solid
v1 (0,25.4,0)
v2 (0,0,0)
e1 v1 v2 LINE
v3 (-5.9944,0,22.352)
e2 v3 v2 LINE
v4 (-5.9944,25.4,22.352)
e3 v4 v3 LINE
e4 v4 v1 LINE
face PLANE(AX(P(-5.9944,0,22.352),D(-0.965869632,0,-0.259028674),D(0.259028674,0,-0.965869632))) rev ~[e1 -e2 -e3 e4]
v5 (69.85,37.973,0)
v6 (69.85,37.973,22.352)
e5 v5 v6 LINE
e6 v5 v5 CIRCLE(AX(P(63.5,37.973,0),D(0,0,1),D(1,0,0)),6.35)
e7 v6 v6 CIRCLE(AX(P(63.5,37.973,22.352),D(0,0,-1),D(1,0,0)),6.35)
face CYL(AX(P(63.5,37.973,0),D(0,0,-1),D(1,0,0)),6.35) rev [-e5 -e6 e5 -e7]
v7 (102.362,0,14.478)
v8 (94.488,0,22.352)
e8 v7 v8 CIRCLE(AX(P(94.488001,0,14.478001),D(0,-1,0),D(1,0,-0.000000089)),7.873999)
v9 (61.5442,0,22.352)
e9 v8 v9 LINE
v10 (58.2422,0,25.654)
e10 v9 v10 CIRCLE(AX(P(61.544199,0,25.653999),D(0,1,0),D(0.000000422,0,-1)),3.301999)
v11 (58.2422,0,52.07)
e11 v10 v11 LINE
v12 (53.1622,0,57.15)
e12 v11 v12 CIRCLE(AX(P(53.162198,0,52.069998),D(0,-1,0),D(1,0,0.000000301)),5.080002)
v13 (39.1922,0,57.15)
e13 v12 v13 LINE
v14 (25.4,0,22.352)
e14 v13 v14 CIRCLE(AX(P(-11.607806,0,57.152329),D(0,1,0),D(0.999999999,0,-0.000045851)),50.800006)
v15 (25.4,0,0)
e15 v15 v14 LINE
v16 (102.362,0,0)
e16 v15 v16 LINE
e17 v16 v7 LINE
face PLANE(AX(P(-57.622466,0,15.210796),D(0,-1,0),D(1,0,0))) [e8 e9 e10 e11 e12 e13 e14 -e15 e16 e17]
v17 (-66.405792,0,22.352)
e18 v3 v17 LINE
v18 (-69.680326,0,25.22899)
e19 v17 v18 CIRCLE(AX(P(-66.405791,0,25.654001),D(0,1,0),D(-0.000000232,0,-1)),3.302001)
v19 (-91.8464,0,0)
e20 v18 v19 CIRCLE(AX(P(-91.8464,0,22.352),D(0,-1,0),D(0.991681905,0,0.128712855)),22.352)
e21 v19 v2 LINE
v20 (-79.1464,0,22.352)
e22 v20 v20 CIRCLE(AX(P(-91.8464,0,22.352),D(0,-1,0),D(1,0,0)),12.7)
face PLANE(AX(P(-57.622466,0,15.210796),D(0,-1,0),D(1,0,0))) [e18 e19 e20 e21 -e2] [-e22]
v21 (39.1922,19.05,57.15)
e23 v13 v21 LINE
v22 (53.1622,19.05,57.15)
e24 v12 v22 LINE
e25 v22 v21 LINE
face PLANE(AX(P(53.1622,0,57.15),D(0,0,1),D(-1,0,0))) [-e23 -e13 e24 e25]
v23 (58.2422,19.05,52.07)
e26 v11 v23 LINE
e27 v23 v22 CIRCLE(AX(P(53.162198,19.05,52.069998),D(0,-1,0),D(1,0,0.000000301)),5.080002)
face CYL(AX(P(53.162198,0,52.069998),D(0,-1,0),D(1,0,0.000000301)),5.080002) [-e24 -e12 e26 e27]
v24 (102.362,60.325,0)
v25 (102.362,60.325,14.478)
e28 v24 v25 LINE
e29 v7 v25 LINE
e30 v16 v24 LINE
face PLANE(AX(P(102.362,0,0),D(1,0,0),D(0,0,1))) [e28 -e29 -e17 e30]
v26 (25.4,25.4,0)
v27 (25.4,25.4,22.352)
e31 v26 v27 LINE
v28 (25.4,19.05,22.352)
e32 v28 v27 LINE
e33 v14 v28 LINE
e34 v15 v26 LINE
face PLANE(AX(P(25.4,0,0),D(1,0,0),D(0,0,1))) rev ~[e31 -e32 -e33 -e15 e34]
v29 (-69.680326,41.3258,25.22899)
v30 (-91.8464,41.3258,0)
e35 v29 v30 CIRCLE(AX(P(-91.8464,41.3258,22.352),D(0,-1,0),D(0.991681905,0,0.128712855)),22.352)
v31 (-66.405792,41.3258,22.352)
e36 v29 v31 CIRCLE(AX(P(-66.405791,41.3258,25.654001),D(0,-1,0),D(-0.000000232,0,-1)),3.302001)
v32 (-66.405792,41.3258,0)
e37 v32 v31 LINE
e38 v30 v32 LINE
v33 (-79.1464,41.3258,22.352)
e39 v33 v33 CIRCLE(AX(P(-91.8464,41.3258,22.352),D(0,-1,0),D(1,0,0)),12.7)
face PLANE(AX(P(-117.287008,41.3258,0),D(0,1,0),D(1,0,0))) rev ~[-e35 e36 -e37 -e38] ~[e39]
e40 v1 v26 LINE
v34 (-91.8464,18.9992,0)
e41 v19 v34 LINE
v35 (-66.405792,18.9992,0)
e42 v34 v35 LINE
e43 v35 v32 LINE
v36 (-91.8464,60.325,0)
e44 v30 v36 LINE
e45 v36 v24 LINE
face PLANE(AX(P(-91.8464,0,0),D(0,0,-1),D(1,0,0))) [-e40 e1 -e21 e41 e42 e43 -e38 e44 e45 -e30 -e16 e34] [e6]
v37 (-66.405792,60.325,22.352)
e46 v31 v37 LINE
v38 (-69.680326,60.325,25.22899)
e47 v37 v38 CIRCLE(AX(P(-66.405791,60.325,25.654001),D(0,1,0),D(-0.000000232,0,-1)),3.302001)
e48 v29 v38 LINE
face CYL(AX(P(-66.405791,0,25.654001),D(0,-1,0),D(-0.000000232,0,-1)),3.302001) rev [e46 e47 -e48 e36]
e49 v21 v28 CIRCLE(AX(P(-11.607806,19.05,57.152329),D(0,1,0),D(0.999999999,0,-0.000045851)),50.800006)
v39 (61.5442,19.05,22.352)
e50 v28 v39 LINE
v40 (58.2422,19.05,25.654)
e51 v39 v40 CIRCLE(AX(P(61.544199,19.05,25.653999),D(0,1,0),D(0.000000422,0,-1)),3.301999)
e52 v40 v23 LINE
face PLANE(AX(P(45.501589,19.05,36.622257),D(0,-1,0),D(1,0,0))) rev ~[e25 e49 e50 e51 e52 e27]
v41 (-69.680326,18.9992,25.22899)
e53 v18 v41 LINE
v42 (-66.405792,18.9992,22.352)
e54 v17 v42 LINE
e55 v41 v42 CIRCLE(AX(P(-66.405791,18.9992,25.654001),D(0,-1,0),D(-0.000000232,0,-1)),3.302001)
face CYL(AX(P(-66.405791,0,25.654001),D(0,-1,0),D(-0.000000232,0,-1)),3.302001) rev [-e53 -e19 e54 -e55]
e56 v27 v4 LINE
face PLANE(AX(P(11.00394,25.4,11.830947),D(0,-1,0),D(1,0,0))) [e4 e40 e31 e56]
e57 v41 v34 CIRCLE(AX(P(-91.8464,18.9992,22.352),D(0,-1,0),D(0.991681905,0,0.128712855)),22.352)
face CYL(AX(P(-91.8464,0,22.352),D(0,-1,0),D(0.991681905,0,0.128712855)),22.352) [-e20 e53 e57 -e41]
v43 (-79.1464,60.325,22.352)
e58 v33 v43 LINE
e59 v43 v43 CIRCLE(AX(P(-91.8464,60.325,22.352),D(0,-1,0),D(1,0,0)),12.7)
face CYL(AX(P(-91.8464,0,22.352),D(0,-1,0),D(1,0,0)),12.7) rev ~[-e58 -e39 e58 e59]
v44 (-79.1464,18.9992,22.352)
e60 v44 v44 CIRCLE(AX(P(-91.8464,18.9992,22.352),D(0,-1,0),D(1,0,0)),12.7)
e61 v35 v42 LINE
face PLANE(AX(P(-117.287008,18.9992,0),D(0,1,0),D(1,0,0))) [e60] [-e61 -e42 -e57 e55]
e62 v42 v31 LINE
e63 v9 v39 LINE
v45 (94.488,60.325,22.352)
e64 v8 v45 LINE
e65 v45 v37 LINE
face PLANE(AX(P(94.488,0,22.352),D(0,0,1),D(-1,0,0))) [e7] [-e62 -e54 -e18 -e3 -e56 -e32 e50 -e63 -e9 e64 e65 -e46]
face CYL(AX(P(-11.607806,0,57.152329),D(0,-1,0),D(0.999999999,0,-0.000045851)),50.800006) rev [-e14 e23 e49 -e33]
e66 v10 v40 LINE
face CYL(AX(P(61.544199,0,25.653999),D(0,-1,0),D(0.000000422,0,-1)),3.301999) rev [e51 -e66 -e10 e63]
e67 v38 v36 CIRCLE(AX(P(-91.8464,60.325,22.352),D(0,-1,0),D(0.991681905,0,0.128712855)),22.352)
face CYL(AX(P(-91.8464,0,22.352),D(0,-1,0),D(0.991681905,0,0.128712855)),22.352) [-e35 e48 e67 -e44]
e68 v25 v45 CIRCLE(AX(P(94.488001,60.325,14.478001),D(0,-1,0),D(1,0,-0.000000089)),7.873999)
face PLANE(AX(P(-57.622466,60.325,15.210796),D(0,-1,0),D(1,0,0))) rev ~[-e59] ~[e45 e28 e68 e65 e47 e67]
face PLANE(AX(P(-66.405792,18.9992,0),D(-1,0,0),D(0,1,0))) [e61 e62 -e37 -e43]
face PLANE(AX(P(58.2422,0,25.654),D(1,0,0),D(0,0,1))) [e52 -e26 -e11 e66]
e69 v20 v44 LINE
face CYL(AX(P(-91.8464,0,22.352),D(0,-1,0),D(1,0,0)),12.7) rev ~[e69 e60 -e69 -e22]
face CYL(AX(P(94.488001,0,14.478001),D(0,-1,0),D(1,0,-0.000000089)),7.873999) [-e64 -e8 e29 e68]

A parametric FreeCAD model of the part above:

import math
import FreeCAD as App
import Part
import Sketcher
Q = App.Units.Quantity


def add_polygon(sketch, points):
    """Adds a closed chain of lines whose ends are joined by coincident constraints."""
    first, n = sketch.GeometryCount, len(points)
    for a, b in zip(points, points[1:] + points[:1]):
        sketch.addGeometry(Part.LineSegment(App.Vector(*a, 0), App.Vector(*b, 0)), False)
    for i in range(n):
        sketch.addConstraint(Sketcher.Constraint("Coincident", first + i, 2, first + (i + 1) % n, 1))

doc = App.newDocument("Part")
params = doc.addObject("Spreadsheet::Sheet", "Params")
for row, (alias, value) in enumerate([
    ("sketch1_diameter", "1 in"),
    ("sketch1_radius", "0.31 in"),
    ("sketch1_radius2", "0.1300001 in"),
    ("sketch1_radius3", "0.88 in"),
    ("sketch1_width", "7.646 in"),
    ("pad1_length", "2.375 in"),
    ("sketch2_radius", "0.2000001 in"),
    ("sketch2_radius2", "0.1299999 in"),
    ("sketch2_width", "0.55 in"),
    ("sketch2_height", "1.04 in"),
    ("sketch2_width2", "1.423 in"),
    ("pad2_length", "0.75 in"),
    ("sketch3_width", "1 in"),
    ("sketch3_height", "0.88 in"),
    ("sketch3_width2", "1.236 in"),
    ("pocket1_length", "0.75 in"),
    ("sketch4_width", "1 in"),
    ("sketch4_height", "0.88 in"),
    ("sketch4_width2", "1.236 in"),
    ("pocket2_length", "1 in"),
    ("sketch5_diameter", "0.5 in"),
    ("sketch5_height", "0.879 in"),
], start=1):
    params.set(f"A{row}", alias)
    params.set(f"B{row}", "=" + value)
    params.setAlias(f"B{row}", alias)

body = doc.addObject("PartDesign::Body", "Body")

# Sketch on XZ plane
sketch1 = body.newObject("Sketcher::SketchObject", "Sketch")
sketch1.AttachmentSupport = (doc.getObject("XZ_Plane"), [""])
sketch1.MapMode = "FlatFace"
sketch1.addGeometry([
    Part.LineSegment(App.Vector(-91.8464, 0, 0), App.Vector(102.362, 0, 0)),  # 0
    Part.LineSegment(App.Vector(102.362, 0, 0), App.Vector(102.362, 14.478, 0)),  # 1
    Part.ArcOfCircle(Part.Circle(App.Vector(94.488001, 14.478001, 0), App.Vector(0, 0, 1), 7.873999), math.radians(-0.000005), math.radians(90.000005)),  # 2
    Part.LineSegment(App.Vector(94.488, 22.352, 0), App.Vector(-66.405792, 22.352, 0)),  # 3
    Part.ArcOfCircle(Part.Circle(App.Vector(-66.405791, 25.654001, 0), App.Vector(0, 0, 1), 3.302001), math.radians(-172.604758), math.radians(-90.000013)),  # 4
    Part.ArcOfCircle(Part.Circle(App.Vector(-91.8464, 22.352, 0), App.Vector(0, 0, 1), 22.352), math.radians(7.395219), math.radians(270)),  # 5
    Part.Circle(App.Vector(-91.8464, 22.352, 0), App.Vector(0, 0, 1), 12.7),  # 6
], False)
sketch1.addConstraint([
    Sketcher.Constraint("Coincident", 0, 2, 1, 1),
    Sketcher.Constraint("Tangent", 1, 2, 2, 1),
    Sketcher.Constraint("Tangent", 2, 2, 3, 1),
    Sketcher.Constraint("Tangent", 3, 2, 4, 2),
    Sketcher.Constraint("Tangent", 4, 1, 5, 1),
    Sketcher.Constraint("Tangent", 5, 2, 0, 1),
    Sketcher.Constraint("Horizontal", 0),
    Sketcher.Constraint("Vertical", 1),
    Sketcher.Constraint("Horizontal", 3),
    Sketcher.Constraint("Coincident", 6, 3, 5, 3),
    Sketcher.Constraint("PointOnObject", 0, 2, -1),
    Sketcher.Constraint("Horizontal", 6, 3, 2, 2),
    Sketcher.Constraint("Diameter", 6, Q("1 in")),
    Sketcher.Constraint("Radius", 2, Q("0.31 in")),
    Sketcher.Constraint("Radius", 4, Q("0.1300001 in")),
    Sketcher.Constraint("Radius", 5, Q("0.88 in")),
    Sketcher.Constraint("DistanceX", 0, 1, 0, 2, Q("7.646 in")),
    Sketcher.Constraint("DistanceX", -1, 1, 2, 3, Q("3.72 in")),
])
sketch1.setExpression("Constraints[12]", "Params.sketch1_diameter")
sketch1.setExpression("Constraints[13]", "Params.sketch1_radius")
sketch1.setExpression("Constraints[14]", "Params.sketch1_radius2")
sketch1.setExpression("Constraints[15]", "Params.sketch1_radius3")
sketch1.setExpression("Constraints[16]", "Params.sketch1_width")
pad1 = body.newObject("PartDesign::Pad", "Pad")
pad1.Profile = sketch1
pad1.setExpression("Length", "Params.pad1_length")
pad1.Reversed = True

# Sketch on XZ plane
sketch2 = body.newObject("Sketcher::SketchObject", "Sketch001")
sketch2.AttachmentSupport = (doc.getObject("XZ_Plane"), [""])
sketch2.MapMode = "FlatFace"
sketch2.addGeometry([
    Part.ArcOfCircle(Part.Circle(App.Vector(-11.607806, 57.152329, 0), App.Vector(0, 0, 1), 50.800006), math.radians(-43.239207), math.radians(-0.002627)),  # 0
    Part.LineSegment(App.Vector(25.4, 22.352, 0), App.Vector(61.5442, 22.352, 0)),  # 1
    Part.ArcOfCircle(Part.Circle(App.Vector(61.544199, 25.653999, 0), App.Vector(0, 0, 1), 3.301999), math.radians(179.999976), math.radians(270.000024)),  # 2
    Part.LineSegment(App.Vector(58.2422, 25.654, 0), App.Vector(58.2422, 52.07, 0)),  # 3
    Part.ArcOfCircle(Part.Circle(App.Vector(53.162198, 52.069998, 0), App.Vector(0, 0, 1), 5.080002), math.radians(0.000017), math.radians(89.999983)),  # 4
    Part.LineSegment(App.Vector(53.1622, 57.15, 0), App.Vector(39.1922, 57.15, 0)),  # 5
], False)
sketch2.addConstraint([
    Sketcher.Constraint("Coincident", 0, 1, 1, 1),
    Sketcher.Constraint("Tangent", 1, 2, 2, 2),
    Sketcher.Constraint("Tangent", 2, 1, 3, 1),
    Sketcher.Constraint("Tangent", 3, 2, 4, 1),
    Sketcher.Constraint("Tangent", 4, 2, 5, 1),
    Sketcher.Constraint("Coincident", 5, 2, 0, 2),
    Sketcher.Constraint("Horizontal", 1),
    Sketcher.Constraint("Vertical", 3),
    Sketcher.Constraint("Horizontal", 5),
    Sketcher.Constraint("Radius", 4, Q("0.2000001 in")),
    Sketcher.Constraint("Radius", 2, Q("0.1299999 in")),
    Sketcher.Constraint("DistanceX", -1, 1, 0, 1, Q("1 in")),
    Sketcher.Constraint("DistanceX", 5, 2, 5, 1, Q("0.55 in")),
    Sketcher.Constraint("DistanceY", 3, 1, 3, 2, Q("1.04 in")),
    Sketcher.Constraint("DistanceX", 1, 1, 1, 2, Q("1.423 in")),
    Sketcher.Constraint("DistanceY", -1, 1, 2, 3, Q("1.0099999 in")),
    Sketcher.Constraint("DistanceX", 0, 3, 2, 3, Q("2.8800002 in")),
])
sketch2.setExpression("Constraints[9]", "Params.sketch2_radius")
sketch2.setExpression("Constraints[10]", "Params.sketch2_radius2")
sketch2.setExpression("Constraints[12]", "Params.sketch2_width")
sketch2.setExpression("Constraints[13]", "Params.sketch2_height")
sketch2.setExpression("Constraints[14]", "Params.sketch2_width2")
pad2 = body.newObject("PartDesign::Pad", "Pad001")
pad2.Profile = sketch2
pad2.setExpression("Length", "Params.pad2_length")
pad2.Reversed = True

# Sketch on XZ plane
sketch3 = body.newObject("Sketcher::SketchObject", "Sketch002")
sketch3.AttachmentSupport = (doc.getObject("XZ_Plane"), [""])
sketch3.MapMode = "FlatFace"
add_polygon(sketch3, [(-5.9944, 22.352), (0, 0), (25.4, 0), (25.4, 22.352)])  # lines 0-3
sketch3.addConstraint([
    Sketcher.Constraint("Horizontal", 1),
    Sketcher.Constraint("Vertical", 2),
    Sketcher.Constraint("Horizontal", 3),
    Sketcher.Constraint("Coincident", 0, 2, -1, 1),
    Sketcher.Constraint("DistanceX", 1, 1, 1, 2, Q("1 in")),
    Sketcher.Constraint("DistanceY", 2, 1, 2, 2, Q("0.88 in")),
    Sketcher.Constraint("DistanceX", 3, 2, 3, 1, Q("1.236 in")),
])
sketch3.setExpression("Constraints[8]", "Params.sketch3_width")
sketch3.setExpression("Constraints[9]", "Params.sketch3_height")
sketch3.setExpression("Constraints[10]", "Params.sketch3_width2")
pocket1 = body.newObject("PartDesign::Pocket", "Pocket")
pocket1.Profile = sketch3
pocket1.setExpression("Length", "Params.pocket1_length")

# Sketch on XZ plane
sketch4 = body.newObject("Sketcher::SketchObject", "Sketch003")
sketch4.AttachmentSupport = (doc.getObject("XZ_Plane"), [""])
sketch4.MapMode = "FlatFace"
add_polygon(sketch4, [(-5.9944, 22.352), (0, 0), (25.4, 0), (25.4, 22.352)])  # lines 0-3
sketch4.addConstraint([
    Sketcher.Constraint("Horizontal", 1),
    Sketcher.Constraint("Vertical", 2),
    Sketcher.Constraint("Horizontal", 3),
    Sketcher.Constraint("Coincident", 0, 2, -1, 1),
    Sketcher.Constraint("DistanceX", 1, 1, 1, 2, Q("1 in")),
    Sketcher.Constraint("DistanceY", 2, 1, 2, 2, Q("0.88 in")),
    Sketcher.Constraint("DistanceX", 3, 2, 3, 1, Q("1.236 in")),
])
sketch4.setExpression("Constraints[8]", "Params.sketch4_width")
sketch4.setExpression("Constraints[9]", "Params.sketch4_height")
sketch4.setExpression("Constraints[10]", "Params.sketch4_width2")
pocket2 = body.newObject("PartDesign::Pocket", "Pocket001")
pocket2.Profile = sketch4
pocket2.setExpression("Length", "Params.pocket2_length")

# Sketch on XY plane
sketch5 = body.newObject("Sketcher::SketchObject", "Sketch004")
sketch5.AttachmentSupport = (doc.getObject("XY_Plane"), [""])
sketch5.MapMode = "FlatFace"
sketch5.addGeometry(Part.Circle(App.Vector(63.5, 37.973, 0), App.Vector(0, 0, 1), 6.35), False)  # 0
add_polygon(sketch5, [(-117.287008, 41.3258), (-117.287008, 18.9992), (-66.405792, 18.9992), (-66.405792, 41.3258)])  # lines 1-4
sketch5.addConstraint([
    Sketcher.Constraint("Vertical", 1),
    Sketcher.Constraint("Horizontal", 2),
    Sketcher.Constraint("Vertical", 3),
    Sketcher.Constraint("Horizontal", 4),
    Sketcher.Constraint("Diameter", 0, Q("0.5 in")),
    Sketcher.Constraint("DistanceX", -1, 1, 0, 3, Q("2.5 in")),
    Sketcher.Constraint("DistanceY", 1, 2, 1, 1, Q("0.879 in")),
    Sketcher.Constraint("DistanceY", -1, 1, 0, 3, Q("1.495 in")),
    Sketcher.Constraint("DistanceY", -1, 1, 1, 2, Q("0.748 in")),
    Sketcher.Constraint("DistanceX", 2, 1, 2, 2, Q("50.881216 mm")),
    Sketcher.Constraint("DistanceX", 1, 2, -1, 1, Q("117.287008 mm")),
])
sketch5.setExpression("Constraints[8]", "Params.sketch5_diameter")
sketch5.setExpression("Constraints[10]", "Params.sketch5_height")
pocket3 = body.newObject("PartDesign::Pocket", "Pocket002")
pocket3.Profile = sketch5
pocket3.Type = "ThroughAll"
pocket3.Reversed = True

doc.recompute()
